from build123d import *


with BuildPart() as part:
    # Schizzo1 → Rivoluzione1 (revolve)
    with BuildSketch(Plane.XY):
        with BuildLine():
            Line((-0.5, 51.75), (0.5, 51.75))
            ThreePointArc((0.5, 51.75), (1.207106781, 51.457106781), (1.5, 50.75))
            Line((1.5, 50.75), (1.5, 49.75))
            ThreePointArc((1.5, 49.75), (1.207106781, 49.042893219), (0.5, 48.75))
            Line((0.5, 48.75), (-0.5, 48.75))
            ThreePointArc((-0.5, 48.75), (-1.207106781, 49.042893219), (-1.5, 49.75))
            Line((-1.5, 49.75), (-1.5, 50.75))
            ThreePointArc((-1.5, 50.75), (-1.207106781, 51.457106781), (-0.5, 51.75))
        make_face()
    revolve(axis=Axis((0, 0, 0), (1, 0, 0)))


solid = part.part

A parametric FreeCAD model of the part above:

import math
import FreeCAD as App
import Part
import Sketcher
from FreeCAD import Vector
Q = App.Units.Quantity

doc = App.newDocument("Part")
body = doc.addObject("PartDesign::Body", "Body")

# Sketch on XY plane
sketch1 = body.newObject("Sketcher::SketchObject", "Sketch")
sketch1.AttachmentSupport = (doc.getObject("XY_Plane"), [""])
sketch1.MapMode = "FlatFace"
sketch1.addGeometry([
    Part.LineSegment(Vector(0.5, 51.8, 0), Vector(-0.5, 51.8, 0)),  # 0
    Part.ArcOfCircle(Part.Circle(Vector(-0.5, 50.7, 0), Vector(0, 0, 1), 1), math.radians(90), math.radians(180)),  # 1
    Part.LineSegment(Vector(-1.5, 50.8, 0), Vector(-1.5, 49.8, 0)),  # 2
    Part.ArcOfCircle(Part.Circle(Vector(-0.5, 49.8, 0), Vector(0, 0, 1), 1), math.radians(-180), math.radians(-90)),  # 3
    Part.LineSegment(Vector(-0.5, 48.8, 0), Vector(0.5, 48.8, 0)),  # 4
    Part.ArcOfCircle(Part.Circle(Vector(0.5, 49.8, 0), Vector(0, 0, 1), 1), math.radians(-90), math.radians(0)),  # 5
    Part.LineSegment(Vector(1.5, 49.8, 0), Vector(1.5, 50.8, 0)),  # 6
    Part.ArcOfCircle(Part.Circle(Vector(0.5, 50.7, 0), Vector(0, 0, 1), 1), math.radians(0), math.radians(90)),  # 7
], False)
sketch1.addConstraint([
    Sketcher.Constraint("Tangent", 0, 2, 1, 1),
    Sketcher.Constraint("Tangent", 1, 2, 2, 1),
    Sketcher.Constraint("Tangent", 2, 2, 3, 1),
    Sketcher.Constraint("Tangent", 3, 2, 4, 1),
    Sketcher.Constraint("Tangent", 4, 2, 5, 1),
    Sketcher.Constraint("Tangent", 5, 2, 6, 1),
    Sketcher.Constraint("Tangent", 6, 2, 7, 1),
    Sketcher.Constraint("Tangent", 7, 2, 0, 1),
    Sketcher.Constraint("Horizontal", 0),
    Sketcher.Constraint("Vertical", 2),
    Sketcher.Constraint("Horizontal", 4),
    Sketcher.Constraint("Vertical", 6),
    Sketcher.Constraint("Equal", 1, 3),
    Sketcher.Constraint("Equal", 3, 5),
    Sketcher.Constraint("Equal", 5, 7),
    Sketcher.Constraint("Equal", 4, 2),
    Sketcher.Constraint("Radius", 1, Q("1 mm")),
    Sketcher.Constraint("DistanceX", 0, 2, 0, 1, Q("1 mm")),
    Sketcher.Constraint("DistanceX", 1, 3, -1, 1, Q("0.5 mm")),
    Sketcher.Constraint("DistanceY", -1, 1, 1, 3, Q("50.75 mm")),
])
revolution = body.newObject("PartDesign::Revolution", "Revolution")
revolution.Profile = sketch1
revolution.ReferenceAxis = (sketch1, ["H_Axis"])
revolution.Angle = 360

doc.recompute()
